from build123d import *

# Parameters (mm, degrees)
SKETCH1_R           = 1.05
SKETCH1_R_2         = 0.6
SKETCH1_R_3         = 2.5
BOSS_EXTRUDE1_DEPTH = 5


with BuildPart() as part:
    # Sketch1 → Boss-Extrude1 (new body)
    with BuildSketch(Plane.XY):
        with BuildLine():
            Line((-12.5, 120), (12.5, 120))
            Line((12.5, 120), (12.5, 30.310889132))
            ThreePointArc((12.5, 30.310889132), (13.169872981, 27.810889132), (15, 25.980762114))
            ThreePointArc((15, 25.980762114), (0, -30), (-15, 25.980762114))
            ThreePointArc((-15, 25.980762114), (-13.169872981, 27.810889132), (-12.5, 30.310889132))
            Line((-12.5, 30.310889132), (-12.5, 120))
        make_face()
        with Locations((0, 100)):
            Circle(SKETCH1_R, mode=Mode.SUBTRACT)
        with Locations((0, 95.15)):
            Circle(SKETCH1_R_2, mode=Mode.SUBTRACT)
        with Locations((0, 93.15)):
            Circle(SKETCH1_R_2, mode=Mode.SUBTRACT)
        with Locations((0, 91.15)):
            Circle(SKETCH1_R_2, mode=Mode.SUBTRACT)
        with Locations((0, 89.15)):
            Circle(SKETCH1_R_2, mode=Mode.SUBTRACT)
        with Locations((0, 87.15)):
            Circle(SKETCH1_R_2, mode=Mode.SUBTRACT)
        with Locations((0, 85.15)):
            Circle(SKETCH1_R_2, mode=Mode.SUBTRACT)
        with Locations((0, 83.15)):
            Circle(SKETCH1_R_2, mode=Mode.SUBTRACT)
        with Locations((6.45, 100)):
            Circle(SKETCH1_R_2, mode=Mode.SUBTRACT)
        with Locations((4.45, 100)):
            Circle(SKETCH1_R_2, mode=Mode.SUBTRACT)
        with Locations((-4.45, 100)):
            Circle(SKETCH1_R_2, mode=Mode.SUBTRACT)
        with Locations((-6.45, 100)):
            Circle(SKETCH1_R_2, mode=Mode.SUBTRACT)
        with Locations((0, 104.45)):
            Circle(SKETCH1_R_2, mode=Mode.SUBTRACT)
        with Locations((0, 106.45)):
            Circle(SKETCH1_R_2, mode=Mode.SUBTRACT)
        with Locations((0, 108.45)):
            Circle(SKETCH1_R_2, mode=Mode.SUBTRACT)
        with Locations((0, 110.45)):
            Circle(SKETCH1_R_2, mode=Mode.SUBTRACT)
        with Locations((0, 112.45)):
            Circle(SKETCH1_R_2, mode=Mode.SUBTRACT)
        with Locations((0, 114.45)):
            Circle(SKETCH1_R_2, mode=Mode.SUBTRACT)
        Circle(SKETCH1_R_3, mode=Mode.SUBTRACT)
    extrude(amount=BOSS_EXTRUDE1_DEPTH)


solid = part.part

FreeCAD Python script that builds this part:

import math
import FreeCAD as App
import Part
import Sketcher
Q = App.Units.Quantity

doc = App.newDocument("Part")
body = doc.addObject("PartDesign::Body", "Body")

sketch1 = body.newObject("Sketcher::SketchObject", "Sketch")
sketch1.AttachmentSupport = (doc.getObject("XY_Plane"), [""])
sketch1.MapMode = "FlatFace"
sketch1.addGeometry([
    Part.LineSegment(App.Vector(12.5, 120, 0), App.Vector(-12.5, 120, 0)),
    Part.LineSegment(App.Vector(-12.5, 120, 0), App.Vector(-12.5, 30.3, 0)),
    Part.ArcOfCircle(Part.Circle(App.Vector(-17.5, 30.3, 0), App.Vector(0, 0, 1), 5), math.radians(-60), math.radians(0)),
    Part.ArcOfCircle(Part.Circle(App.Vector(0, 0, 0), App.Vector(0, 0, 1), 30), math.radians(120), math.radians(420)),
    Part.ArcOfCircle(Part.Circle(App.Vector(17.5, 30.3, 0), App.Vector(0, 0, 1), 5), math.radians(180), math.radians(240)),
    Part.LineSegment(App.Vector(12.5, 30.3, 0), App.Vector(12.5, 120, 0)),
    Part.Circle(App.Vector(0, 0, 0), App.Vector(0, 0, 1), 2.5),
    Part.Circle(App.Vector(6.5, 100, 0), App.Vector(0, 0, 1), 0.6),
    Part.Circle(App.Vector(4.5, 100, 0), App.Vector(0, 0, 1), 0.6),
    Part.Circle(App.Vector(0, 83.2, 0), App.Vector(0, 0, 1), 0.6),
    Part.Circle(App.Vector(0, 85.2, 0), App.Vector(0, 0, 1), 0.6),
    Part.Circle(App.Vector(0, 87.2, 0), App.Vector(0, 0, 1), 0.6),
    Part.Circle(App.Vector(0, 89.2, 0), App.Vector(0, 0, 1), 0.6),
    Part.Circle(App.Vector(0, 91.2, 0), App.Vector(0, 0, 1), 0.6),
    Part.Circle(App.Vector(0, 93.2, 0), App.Vector(0, 0, 1), 0.6),
    Part.Circle(App.Vector(0, 95.2, 0), App.Vector(0, 0, 1), 0.6),
    Part.Circle(App.Vector(0, 100, 0), App.Vector(0, 0, 1), 1.1),
    Part.Circle(App.Vector(0, 104.5, 0), App.Vector(0, 0, 1), 0.6),
    Part.Circle(App.Vector(0, 106.5, 0), App.Vector(0, 0, 1), 0.6),
    Part.Circle(App.Vector(0, 108.5, 0), App.Vector(0, 0, 1), 0.6),
    Part.Circle(App.Vector(0, 110.5, 0), App.Vector(0, 0, 1), 0.6),
    Part.Circle(App.Vector(0, 112.5, 0), App.Vector(0, 0, 1), 0.6),
    Part.Circle(App.Vector(0, 114.5, 0), App.Vector(0, 0, 1), 0.6),
    Part.Circle(App.Vector(-4.5, 100, 0), App.Vector(0, 0, 1), 0.6),
    Part.Circle(App.Vector(-6.5, 100, 0), App.Vector(0, 0, 1), 0.6),
], False)
sketch1.addConstraint([
    Sketcher.Constraint("Coincident", 0, 2, 1, 1),
    Sketcher.Constraint("Tangent", 1, 2, 2, 2),
    Sketcher.Constraint("Tangent", 2, 1, 3, 1),
    Sketcher.Constraint("Tangent", 3, 2, 4, 2),
    Sketcher.Constraint("Tangent", 4, 1, 5, 1),
    Sketcher.Constraint("Coincident", 5, 2, 0, 1),
    Sketcher.Constraint("Horizontal", 0),
    Sketcher.Constraint("Vertical", 1),
    Sketcher.Constraint("Vertical", 5),
    Sketcher.Constraint("Coincident", 3, 3, -1, 1),
    Sketcher.Constraint("Coincident", 6, 3, -1, 1),
    Sketcher.Constraint("Equal", 2, 4),
    Sketcher.Constraint("Equal", 7, 8),
    Sketcher.Constraint("Equal", 8, 9),
    Sketcher.Constraint("Equal", 9, 10),
    Sketcher.Constraint("Equal", 10, 11),
    Sketcher.Constraint("Equal", 11, 12),
    Sketcher.Constraint("Equal", 12, 13),
    Sketcher.Constraint("Equal", 13, 14),
    Sketcher.Constraint("Equal", 14, 15),
    Sketcher.Constraint("Equal", 15, 17),
    Sketcher.Constraint("Equal", 17, 18),
    Sketcher.Constraint("Equal", 18, 19),
    Sketcher.Constraint("Equal", 19, 20),
    Sketcher.Constraint("Equal", 20, 21),
    Sketcher.Constraint("Equal", 21, 22),
    Sketcher.Constraint("Equal", 22, 23),
    Sketcher.Constraint("Equal", 23, 24),
    Sketcher.Constraint("Symmetric", 8, 3, 23, 3, -2),
    Sketcher.Constraint("Symmetric", 7, 3, 24, 3, -2),
    Sketcher.Constraint("PointOnObject", 9, 3, -2),
    Sketcher.Constraint("PointOnObject", 10, 3, -2),
    Sketcher.Constraint("PointOnObject", 11, 3, -2),
    Sketcher.Constraint("PointOnObject", 12, 3, -2),
    Sketcher.Constraint("PointOnObject", 13, 3, -2),
    Sketcher.Constraint("PointOnObject", 14, 3, -2),
    Sketcher.Constraint("PointOnObject", 15, 3, -2),
    Sketcher.Constraint("PointOnObject", 16, 3, -2),
    Sketcher.Constraint("PointOnObject", 17, 3, -2),
    Sketcher.Constraint("PointOnObject", 18, 3, -2),
    Sketcher.Constraint("PointOnObject", 19, 3, -2),
    Sketcher.Constraint("PointOnObject", 20, 3, -2),
    Sketcher.Constraint("PointOnObject", 21, 3, -2),
    Sketcher.Constraint("PointOnObject", 22, 3, -2),
    Sketcher.Constraint("Horizontal", 2, 3, 4, 3),
    Sketcher.Constraint("Horizontal", 7, 3, 8, 3),
    Sketcher.Constraint("Horizontal", 8, 3, 16, 3),
    Sketcher.Constraint("Diameter", 6, Q("5 mm")),
    Sketcher.Constraint("Radius", 2, Q("5 mm")),
    Sketcher.Constraint("Radius", 3, Q("30 mm")),
    Sketcher.Constraint("Diameter", 7, Q("1.2 mm")),
    Sketcher.Constraint("Diameter", 16, Q("2.1 mm")),
    Sketcher.Constraint("DistanceX", 0, 2, 0, 1, Q("25 mm")),
    Sketcher.Constraint("DistanceY", -1, 1, 7, 3, Q("100 mm")),
    Sketcher.Constraint("DistanceY", -1, 1, 0, 2, Q("120 mm")),
    Sketcher.Constraint("DistanceX", 8, 3, 7, 3, Q("2 mm")),
    Sketcher.Constraint("DistanceY", 9, 3, 10, 3, Q("2 mm")),
    Sketcher.Constraint("DistanceY", 10, 3, 11, 3, Q("2 mm")),
    Sketcher.Constraint("DistanceY", 11, 3, 12, 3, Q("2 mm")),
    Sketcher.Constraint("DistanceY", 12, 3, 13, 3, Q("2 mm")),
    Sketcher.Constraint("DistanceY", 13, 3, 14, 3, Q("2 mm")),
    Sketcher.Constraint("DistanceY", 14, 3, 15, 3, Q("2 mm")),
    Sketcher.Constraint("DistanceY", 17, 3, 18, 3, Q("2 mm")),
    Sketcher.Constraint("DistanceY", 18, 3, 19, 3, Q("2 mm")),
    Sketcher.Constraint("DistanceY", 19, 3, 20, 3, Q("2 mm")),
    Sketcher.Constraint("DistanceY", 20, 3, 21, 3, Q("2 mm")),
    Sketcher.Constraint("DistanceY", 21, 3, 22, 3, Q("2 mm")),
    Sketcher.Constraint("DistanceY", 15, 3, 17, 3, Q("9.3 mm")),
    Sketcher.Constraint("DistanceX", -1, 1, 7, 3, Q("6.45 mm")),
    Sketcher.Constraint("DistanceY", -1, 1, 9, 3, Q("83.15 mm")),
])
pad1 = body.newObject("PartDesign::Pad", "Pad")
pad1.Profile = sketch1
pad1.Length = 5

doc.recompute()
